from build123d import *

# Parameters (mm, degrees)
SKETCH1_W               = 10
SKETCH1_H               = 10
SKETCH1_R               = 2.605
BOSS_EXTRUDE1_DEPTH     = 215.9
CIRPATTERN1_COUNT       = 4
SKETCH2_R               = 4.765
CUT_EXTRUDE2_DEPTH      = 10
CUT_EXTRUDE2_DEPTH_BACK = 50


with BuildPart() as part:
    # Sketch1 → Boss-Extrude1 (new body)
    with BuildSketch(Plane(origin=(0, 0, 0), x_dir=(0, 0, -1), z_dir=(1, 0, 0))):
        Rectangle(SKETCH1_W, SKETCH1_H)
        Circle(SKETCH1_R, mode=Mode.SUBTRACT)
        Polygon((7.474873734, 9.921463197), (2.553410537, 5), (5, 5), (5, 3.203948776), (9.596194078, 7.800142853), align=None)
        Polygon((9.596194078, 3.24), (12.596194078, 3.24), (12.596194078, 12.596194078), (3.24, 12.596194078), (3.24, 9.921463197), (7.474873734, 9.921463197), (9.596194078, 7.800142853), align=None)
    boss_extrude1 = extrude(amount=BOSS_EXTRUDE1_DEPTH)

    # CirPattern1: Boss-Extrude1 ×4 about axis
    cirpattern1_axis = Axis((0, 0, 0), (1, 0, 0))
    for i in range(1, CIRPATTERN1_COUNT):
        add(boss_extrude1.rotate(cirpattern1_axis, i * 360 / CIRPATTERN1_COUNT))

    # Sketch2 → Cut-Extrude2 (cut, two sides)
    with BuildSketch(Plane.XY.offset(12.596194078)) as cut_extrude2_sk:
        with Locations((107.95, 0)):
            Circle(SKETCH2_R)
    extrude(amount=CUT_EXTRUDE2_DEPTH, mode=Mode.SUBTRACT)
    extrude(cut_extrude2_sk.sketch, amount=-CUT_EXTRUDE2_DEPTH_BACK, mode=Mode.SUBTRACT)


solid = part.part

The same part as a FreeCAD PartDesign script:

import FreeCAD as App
import Part
import Sketcher
Q = App.Units.Quantity


def add_polygon(sketch, points):
    """Adds a closed chain of lines whose ends are joined by coincident constraints."""
    first, n = sketch.GeometryCount, len(points)
    for a, b in zip(points, points[1:] + points[:1]):
        sketch.addGeometry(Part.LineSegment(App.Vector(*a, 0), App.Vector(*b, 0)), False)
    for i in range(n):
        sketch.addConstraint(Sketcher.Constraint("Coincident", first + i, 2, first + (i + 1) % n, 1))

doc = App.newDocument("Part")
params = doc.addObject("Spreadsheet::Sheet", "Params")
for row, (alias, value) in enumerate([
    ("sketch1_diameter", "5.21 mm"),
    ("sketch1_width", "10 mm"),
    ("sketch1_height", "3 mm"),
    ("sketch1_length", "6.5 mm"),
    ("sketch1_length2", "6.96 mm"),
    ("pad1_length", "215.9 mm"),
    ("sketch2_diameter", "9.53 mm"),
], start=1):
    params.set(f"A{row}", alias)
    params.set(f"B{row}", "=" + value)
    params.setAlias(f"B{row}", alias)

body = doc.addObject("PartDesign::Body", "Body")

# Sketch on YZ plane
sketch1 = body.newObject("Sketcher::SketchObject", "Sketch")
sketch1.AttachmentSupport = (doc.getObject("YZ_Plane"), [""])
sketch1.MapMode = "FlatFace"
add_polygon(sketch1, [(5, 5), (-5, 5), (-5, -5), (3.2, -5), (7.8, -9.6), (3.2, -9.6), (3.2, -12.6), (12.6, -12.6), (12.6, -3.2), (9.9, -3.2), (9.9, -7.5), (5, -2.6)])  # lines 0-11
sketch1.addGeometry(Part.Circle(App.Vector(0, 0, 0), App.Vector(0, 0, 1), 2.6), False)  # 12
sketch1.addConstraint(Sketcher.Constraint("Horizontal", 0))
sketch1.addConstraint(Sketcher.Constraint("Vertical", 1))
sketch1.addConstraint(Sketcher.Constraint("Horizontal", 2))
sketch1.addConstraint(Sketcher.Constraint("Horizontal", 4))
sketch1.addConstraint(Sketcher.Constraint("Vertical", 5))
sketch1.addConstraint(Sketcher.Constraint("Horizontal", 6))
sketch1.addConstraint(Sketcher.Constraint("Vertical", 7))
sketch1.addConstraint(Sketcher.Constraint("Horizontal", 8))
sketch1.addConstraint(Sketcher.Constraint("Vertical", 9))
sketch1.addConstraint(Sketcher.Constraint("Vertical", 11))
sketch1.addConstraint(Sketcher.Constraint("Coincident", 12, 3, -1, 1))
sketch1.addConstraint(Sketcher.Constraint("Symmetric", 1, 2, 11, 2, -1, 1))
sketch1.addConstraint(Sketcher.Constraint("Parallel", 3, 10))
sketch1.addConstraint(Sketcher.Constraint("Equal", 0, 1))
sketch1.addConstraint(Sketcher.Constraint("Equal", 6, 7))
sketch1.addConstraint(Sketcher.Constraint("Diameter", 12, 5.21))
sketch1.addConstraint(Sketcher.Constraint("DistanceX", 0, 2, 0, 1, 10.0))
sketch1.addConstraint(Sketcher.Constraint("DistanceY", 5, 2, 5, 1, 3.0))
sketch1.addConstraint(Sketcher.Constraint("Angle", 3, Q("-45 deg")))
sketch1.addConstraint(Sketcher.Constraint("Distance", 3, 6.5))
sketch1.addConstraint(Sketcher.Constraint("Distance", 10, 6.96))
sketch1.addConstraint(Sketcher.Constraint("DistanceX", -1, 1, 4, 2, 3.24))
sketch1.addConstraint(Sketcher.Constraint("DistanceY", 7, 2, -1, 1, 3.24))
sketch1.addConstraint(Sketcher.Constraint("DistanceX", 2, 1, 2, 2, 8.203949))
sketch1.addConstraint(Sketcher.Constraint("DistanceY", 11, 1, 11, 2, 7.553411))
sketch1.setExpression("Constraints[27]", "Params.sketch1_diameter")
sketch1.setExpression("Constraints[28]", "Params.sketch1_width")
sketch1.setExpression("Constraints[29]", "Params.sketch1_height")
sketch1.setExpression("Constraints[31]", "Params.sketch1_length")
sketch1.setExpression("Constraints[32]", "Params.sketch1_length2")
pad1 = body.newObject("PartDesign::Pad", "Pad")
pad1.Profile = sketch1
pad1.setExpression("Length", "Params.pad1_length")
doc.recompute()

polarpattern = body.newObject("PartDesign::PolarPattern", "PolarPattern")
polarpattern.Originals = [pad1]
polarpattern.Axis = (doc.getObject("X_Axis"), [""])
polarpattern.Angle = 360
polarpattern.Occurrences = 4
body.Tip = polarpattern

# Sketch on XY plane
sketch2 = body.newObject("Sketcher::SketchObject", "Sketch001")
sketch2.AttachmentSupport = (doc.getObject("XY_Plane"), [""])
sketch2.MapMode = "FlatFace"
sketch2.AttachmentOffset = App.Placement(App.Vector(0, 0, 12.596194), App.Rotation())
sketch2.addGeometry(Part.Circle(App.Vector(108, 0, 0), App.Vector(0, 0, 1), 4.8), False)
sketch2.addConstraint(Sketcher.Constraint("PointOnObject", 0, 3, -1))
sketch2.addConstraint(Sketcher.Constraint("Diameter", 0, 9.53))
sketch2.addConstraint(Sketcher.Constraint("DistanceX", -1, 1, 0, 3, 107.95))
sketch2.setExpression("Constraints[1]", "Params.sketch2_diameter")
pocket1 = body.newObject("PartDesign::Pocket", "Pocket")
pocket1.Profile = sketch2
pocket1.Type = "ThroughAll"
pocket1.Midplane = True

doc.recompute()
